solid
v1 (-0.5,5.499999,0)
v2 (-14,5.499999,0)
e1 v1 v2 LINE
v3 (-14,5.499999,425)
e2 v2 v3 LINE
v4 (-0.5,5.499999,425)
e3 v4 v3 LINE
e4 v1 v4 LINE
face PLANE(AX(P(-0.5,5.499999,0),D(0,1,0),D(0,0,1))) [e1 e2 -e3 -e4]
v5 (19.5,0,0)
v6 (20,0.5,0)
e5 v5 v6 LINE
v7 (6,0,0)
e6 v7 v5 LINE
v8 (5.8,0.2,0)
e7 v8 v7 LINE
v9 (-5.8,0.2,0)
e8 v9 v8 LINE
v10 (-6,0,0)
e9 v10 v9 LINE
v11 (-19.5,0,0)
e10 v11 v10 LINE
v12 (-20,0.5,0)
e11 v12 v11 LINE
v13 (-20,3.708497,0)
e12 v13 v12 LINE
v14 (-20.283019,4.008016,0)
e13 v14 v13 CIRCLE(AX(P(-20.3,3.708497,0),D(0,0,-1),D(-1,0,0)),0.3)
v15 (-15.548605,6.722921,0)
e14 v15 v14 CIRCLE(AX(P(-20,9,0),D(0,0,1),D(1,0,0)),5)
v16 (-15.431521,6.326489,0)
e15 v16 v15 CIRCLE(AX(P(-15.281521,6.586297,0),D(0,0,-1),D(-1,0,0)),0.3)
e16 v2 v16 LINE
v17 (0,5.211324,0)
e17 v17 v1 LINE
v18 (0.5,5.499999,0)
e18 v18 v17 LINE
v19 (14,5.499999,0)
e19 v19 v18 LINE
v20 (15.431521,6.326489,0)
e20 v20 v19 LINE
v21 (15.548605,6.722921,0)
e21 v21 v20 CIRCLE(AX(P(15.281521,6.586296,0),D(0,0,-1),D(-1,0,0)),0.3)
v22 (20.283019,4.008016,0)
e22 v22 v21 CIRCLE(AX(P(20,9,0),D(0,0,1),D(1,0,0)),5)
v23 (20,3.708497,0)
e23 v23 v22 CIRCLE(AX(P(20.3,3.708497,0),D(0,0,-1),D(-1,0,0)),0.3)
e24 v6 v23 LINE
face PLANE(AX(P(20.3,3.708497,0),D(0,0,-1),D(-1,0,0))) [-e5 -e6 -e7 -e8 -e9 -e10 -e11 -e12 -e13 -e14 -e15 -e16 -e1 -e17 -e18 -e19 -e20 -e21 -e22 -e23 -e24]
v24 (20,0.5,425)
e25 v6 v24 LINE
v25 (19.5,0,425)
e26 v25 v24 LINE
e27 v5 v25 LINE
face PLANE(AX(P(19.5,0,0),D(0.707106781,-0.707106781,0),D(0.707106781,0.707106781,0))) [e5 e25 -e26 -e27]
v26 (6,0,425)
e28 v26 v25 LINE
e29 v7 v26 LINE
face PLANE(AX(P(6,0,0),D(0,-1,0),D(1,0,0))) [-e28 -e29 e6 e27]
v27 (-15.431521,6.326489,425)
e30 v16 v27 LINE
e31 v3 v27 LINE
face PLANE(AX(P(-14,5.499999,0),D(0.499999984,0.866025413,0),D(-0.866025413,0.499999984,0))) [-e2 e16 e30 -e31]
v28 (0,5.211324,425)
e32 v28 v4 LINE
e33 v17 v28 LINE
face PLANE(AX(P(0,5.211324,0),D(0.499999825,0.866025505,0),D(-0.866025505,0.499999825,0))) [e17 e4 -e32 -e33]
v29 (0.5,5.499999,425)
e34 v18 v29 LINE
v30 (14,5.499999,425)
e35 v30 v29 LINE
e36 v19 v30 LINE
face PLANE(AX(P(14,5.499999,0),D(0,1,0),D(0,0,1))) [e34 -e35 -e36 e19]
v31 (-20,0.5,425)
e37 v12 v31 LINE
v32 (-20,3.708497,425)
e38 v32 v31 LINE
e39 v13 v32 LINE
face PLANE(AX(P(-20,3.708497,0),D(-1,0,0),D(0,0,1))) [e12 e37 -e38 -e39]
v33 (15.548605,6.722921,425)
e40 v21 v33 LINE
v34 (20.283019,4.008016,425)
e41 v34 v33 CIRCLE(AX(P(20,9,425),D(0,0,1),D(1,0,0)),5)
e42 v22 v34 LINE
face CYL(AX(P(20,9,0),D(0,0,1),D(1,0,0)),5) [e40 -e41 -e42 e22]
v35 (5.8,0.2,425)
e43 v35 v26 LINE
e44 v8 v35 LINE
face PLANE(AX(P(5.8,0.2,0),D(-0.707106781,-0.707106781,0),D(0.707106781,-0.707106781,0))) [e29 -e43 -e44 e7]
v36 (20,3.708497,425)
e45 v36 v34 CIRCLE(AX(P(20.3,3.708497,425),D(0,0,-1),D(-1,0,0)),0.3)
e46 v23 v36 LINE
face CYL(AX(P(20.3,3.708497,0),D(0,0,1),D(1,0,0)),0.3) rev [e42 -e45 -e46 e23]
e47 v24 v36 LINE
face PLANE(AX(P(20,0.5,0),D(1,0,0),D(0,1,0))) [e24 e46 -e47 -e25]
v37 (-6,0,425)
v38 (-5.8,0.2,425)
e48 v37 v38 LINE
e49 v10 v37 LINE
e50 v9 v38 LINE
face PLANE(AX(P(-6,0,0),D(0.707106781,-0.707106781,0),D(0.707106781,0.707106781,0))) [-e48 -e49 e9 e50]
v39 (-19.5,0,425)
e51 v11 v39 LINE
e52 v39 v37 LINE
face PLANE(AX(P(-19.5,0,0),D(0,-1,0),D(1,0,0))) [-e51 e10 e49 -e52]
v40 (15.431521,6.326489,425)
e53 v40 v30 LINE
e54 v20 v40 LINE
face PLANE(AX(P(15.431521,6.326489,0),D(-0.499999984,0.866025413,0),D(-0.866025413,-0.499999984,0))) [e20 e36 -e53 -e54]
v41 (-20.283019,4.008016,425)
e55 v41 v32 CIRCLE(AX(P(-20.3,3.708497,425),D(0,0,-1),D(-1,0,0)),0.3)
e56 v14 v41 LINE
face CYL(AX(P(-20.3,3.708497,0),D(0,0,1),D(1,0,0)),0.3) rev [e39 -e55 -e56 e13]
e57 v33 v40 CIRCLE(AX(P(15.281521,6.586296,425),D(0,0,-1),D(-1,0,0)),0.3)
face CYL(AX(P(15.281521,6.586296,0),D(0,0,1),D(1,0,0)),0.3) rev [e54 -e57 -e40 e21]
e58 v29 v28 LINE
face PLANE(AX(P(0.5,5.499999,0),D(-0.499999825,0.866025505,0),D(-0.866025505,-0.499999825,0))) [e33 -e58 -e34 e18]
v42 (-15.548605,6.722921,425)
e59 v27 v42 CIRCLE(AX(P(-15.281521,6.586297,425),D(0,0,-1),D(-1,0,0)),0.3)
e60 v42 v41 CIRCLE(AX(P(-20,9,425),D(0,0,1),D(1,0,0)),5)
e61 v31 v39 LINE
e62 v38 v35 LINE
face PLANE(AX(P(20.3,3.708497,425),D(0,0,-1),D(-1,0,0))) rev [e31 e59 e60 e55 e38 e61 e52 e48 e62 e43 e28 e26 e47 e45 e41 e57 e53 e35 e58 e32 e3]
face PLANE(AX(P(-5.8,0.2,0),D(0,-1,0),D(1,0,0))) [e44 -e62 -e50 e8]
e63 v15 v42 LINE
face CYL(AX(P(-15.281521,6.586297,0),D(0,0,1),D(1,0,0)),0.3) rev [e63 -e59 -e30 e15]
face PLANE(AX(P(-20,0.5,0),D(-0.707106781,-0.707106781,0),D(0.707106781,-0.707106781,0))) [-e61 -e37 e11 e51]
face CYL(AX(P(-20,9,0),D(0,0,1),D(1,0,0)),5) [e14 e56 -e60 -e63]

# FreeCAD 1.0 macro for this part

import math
import FreeCAD as App
import Part
import Sketcher

V = App.Vector
Q = App.Units.Quantity

doc = App.newDocument("Part")
body = doc.addObject("PartDesign::Body", "Body")

# Sketch on XY plane
sketch1 = body.newObject("Sketcher::SketchObject", "Sketch")
sketch1.AttachmentSupport = (doc.getObject("XY_Plane"), [""])
sketch1.MapMode = "FlatFace"
sketch1.AttachmentOffset = App.Placement(V(0, 0, 425), App.Rotation())
sketch1.addGeometry([
    Part.LineSegment(V(-20, 0.5, 0), V(-19.5, 0, 0)),  # 0
    Part.LineSegment(V(-19.5, 0, 0), V(-6, 0, 0)),  # 1
    Part.LineSegment(V(-6, 0, 0), V(-5.8, 0.2, 0)),  # 2
    Part.LineSegment(V(-5.8, 0.2, 0), V(5.8, 0.2, 0)),  # 3
    Part.LineSegment(V(5.8, 0.2, 0), V(6, 0, 0)),  # 4
    Part.LineSegment(V(6, 0, 0), V(19.5, 0, 0)),  # 5
    Part.LineSegment(V(19.5, 0, 0), V(20, 0.5, 0)),  # 6
    Part.LineSegment(V(20, 0.5, 0), V(20, 3.71, 0)),  # 7
    Part.ArcOfCircle(Part.Circle(V(20.3, 3.71, 0), V(0, 0, 1), 0.3), math.radians(93), math.radians(180)),  # 8
    Part.ArcOfCircle(Part.Circle(V(20, 9, 0), V(0, 0, 1), 5), math.radians(-87), math.radians(207)),  # 9
    Part.ArcOfCircle(Part.Circle(V(15.28, 6.59, 0), V(0, 0, 1), 0.3), math.radians(-60), math.radians(27)),  # 10
    Part.LineSegment(V(15.43, 6.33, 0), V(14, 5.5, 0)),  # 11
    Part.LineSegment(V(14, 5.5, 0), V(0.5, 5.5, 0)),  # 12
    Part.LineSegment(V(0.5, 5.5, 0), V(0, 5.21, 0)),  # 13
    Part.LineSegment(V(0, 5.21, 0), V(-0.5, 5.5, 0)),  # 14
    Part.LineSegment(V(-0.5, 5.5, 0), V(-14, 5.5, 0)),  # 15
    Part.LineSegment(V(-14, 5.5, 0), V(-15.43, 6.33, 0)),  # 16
    Part.ArcOfCircle(Part.Circle(V(-15.28, 6.59, 0), V(0, 0, 1), 0.3), math.radians(153), math.radians(240)),  # 17
    Part.ArcOfCircle(Part.Circle(V(-20, 9, 0), V(0, 0, 1), 5), math.radians(-27), math.radians(267)),  # 18
    Part.ArcOfCircle(Part.Circle(V(-20.3, 3.71, 0), V(0, 0, 1), 0.3), math.radians(0), math.radians(87)),  # 19
    Part.LineSegment(V(-20, 3.71, 0), V(-20, 0.5, 0)),  # 20
], False)
sketch1.addConstraint([
    Sketcher.Constraint("Coincident", 0, 2, 1, 1),
    Sketcher.Constraint("Coincident", 1, 2, 2, 1),
    Sketcher.Constraint("Coincident", 2, 2, 3, 1),
    Sketcher.Constraint("Coincident", 3, 2, 4, 1),
    Sketcher.Constraint("Coincident", 4, 2, 5, 1),
    Sketcher.Constraint("Coincident", 5, 2, 6, 1),
    Sketcher.Constraint("Coincident", 6, 2, 7, 1),
    Sketcher.Constraint("Tangent", 7, 2, 8, 2),
    Sketcher.Constraint("Tangent", 8, 1, 9, 1),
    Sketcher.Constraint("Tangent", 9, 2, 10, 2),
    Sketcher.Constraint("Tangent", 10, 1, 11, 1),
    Sketcher.Constraint("Coincident", 11, 2, 12, 1),
    Sketcher.Constraint("Coincident", 12, 2, 13, 1),
    Sketcher.Constraint("Coincident", 13, 2, 14, 1),
    Sketcher.Constraint("Coincident", 14, 2, 15, 1),
    Sketcher.Constraint("Coincident", 15, 2, 16, 1),
    Sketcher.Constraint("Tangent", 16, 2, 17, 2),
    Sketcher.Constraint("Tangent", 17, 1, 18, 1),
    Sketcher.Constraint("Tangent", 18, 2, 19, 2),
    Sketcher.Constraint("Tangent", 19, 1, 20, 1),
    Sketcher.Constraint("Coincident", 20, 2, 0, 1),
    Sketcher.Constraint("Horizontal", 1),
    Sketcher.Constraint("Horizontal", 3),
    Sketcher.Constraint("Horizontal", 5),
    Sketcher.Constraint("Vertical", 7),
    Sketcher.Constraint("Horizontal", 12),
    Sketcher.Constraint("Horizontal", 15),
    Sketcher.Constraint("Vertical", 20),
    Sketcher.Constraint("Equal", 8, 10),
    Sketcher.Constraint("Equal", 10, 17),
    Sketcher.Constraint("Equal", 9, 18),
    Sketcher.Constraint("Equal", 17, 19),
    Sketcher.Constraint("Symmetric", 1, 2, 4, 2, -1, 1),
    Sketcher.Constraint("Symmetric", 10, 3, 17, 3, -2),
    Sketcher.Constraint("Symmetric", 8, 3, 19, 3, -2),
    Sketcher.Constraint("Symmetric", 0, 2, 5, 2, -2),
    Sketcher.Constraint("Symmetric", 12, 2, 14, 2, -2),
    Sketcher.Constraint("PointOnObject", 13, 2, -2),
    Sketcher.Constraint("Perpendicular", 0, 2),
    Sketcher.Constraint("Perpendicular", 2, 4),
    Sketcher.Constraint("Perpendicular", 4, 6),
    Sketcher.Constraint("Parallel", 11, 13),
    Sketcher.Constraint("Parallel", 14, 16),
    Sketcher.Constraint("Horizontal", 6, 2, 20, 2),
    Sketcher.Constraint("Vertical", 9, 3, 6, 2),
    Sketcher.Constraint("Equal", 5, 12),
    Sketcher.Constraint("Radius", 9, Q("5 mm")),
    Sketcher.Constraint("Radius", 8, Q("0.3 mm")),
    Sketcher.Constraint("Angle", 11, Q("-150.000001 deg")),
    Sketcher.Constraint("DistanceX", 1, 1, 1, 2, Q("13.5 mm")),
    Sketcher.Constraint("DistanceX", 3, 1, 3, 2, Q("11.6 mm")),
    Sketcher.Constraint("DistanceX", -1, 1, 9, 3, Q("20 mm")),
    Sketcher.Constraint("DistanceY", -1, 1, 9, 3, Q("9 mm")),
    Sketcher.Constraint("DistanceX", 1, 2, -1, 1, Q("6 mm")),
    Sketcher.Constraint("DistanceX", -1, 1, 11, 2, Q("14 mm")),
    Sketcher.Constraint("DistanceY", -1, 1, 11, 2, Q("5.499999 mm")),
])
pad1 = body.newObject("PartDesign::Pad", "Pad")
pad1.Profile = sketch1
pad1.Length = 425
pad1.Reversed = True

doc.recompute()
